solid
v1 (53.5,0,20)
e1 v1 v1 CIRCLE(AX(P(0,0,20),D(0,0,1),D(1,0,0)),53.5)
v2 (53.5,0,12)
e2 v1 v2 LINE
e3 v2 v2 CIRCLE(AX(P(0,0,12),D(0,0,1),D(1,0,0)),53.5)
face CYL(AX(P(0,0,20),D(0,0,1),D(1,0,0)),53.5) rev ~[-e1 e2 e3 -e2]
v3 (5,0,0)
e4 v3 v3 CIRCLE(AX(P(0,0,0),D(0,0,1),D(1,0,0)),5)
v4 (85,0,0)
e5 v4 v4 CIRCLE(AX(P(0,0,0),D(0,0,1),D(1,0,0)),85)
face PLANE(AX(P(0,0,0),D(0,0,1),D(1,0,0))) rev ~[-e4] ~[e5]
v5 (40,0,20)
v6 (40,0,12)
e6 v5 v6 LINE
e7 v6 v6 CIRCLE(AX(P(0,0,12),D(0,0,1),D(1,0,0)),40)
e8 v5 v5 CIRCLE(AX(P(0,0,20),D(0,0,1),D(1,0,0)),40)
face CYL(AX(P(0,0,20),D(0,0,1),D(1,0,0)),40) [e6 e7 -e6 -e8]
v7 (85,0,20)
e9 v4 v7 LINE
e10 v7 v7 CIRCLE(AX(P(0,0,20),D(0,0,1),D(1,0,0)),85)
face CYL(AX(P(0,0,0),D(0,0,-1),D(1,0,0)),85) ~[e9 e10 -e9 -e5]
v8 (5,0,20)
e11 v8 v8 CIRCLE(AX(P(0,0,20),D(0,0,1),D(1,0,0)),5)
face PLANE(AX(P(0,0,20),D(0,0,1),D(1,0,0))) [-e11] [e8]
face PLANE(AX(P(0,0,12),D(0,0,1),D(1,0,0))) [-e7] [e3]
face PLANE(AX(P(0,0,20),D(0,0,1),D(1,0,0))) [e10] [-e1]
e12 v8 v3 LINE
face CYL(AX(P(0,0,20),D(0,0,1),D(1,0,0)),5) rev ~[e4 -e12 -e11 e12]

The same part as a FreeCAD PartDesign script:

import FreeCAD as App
import Part
import Sketcher
from FreeCAD import Vector
Q = App.Units.Quantity

doc = App.newDocument("Part")
params = doc.addObject("Spreadsheet::Sheet", "Params")
for row, (alias, value) in enumerate([
    ("sketch1_diameter", "170 mm"),
    ("pad1_length", "20 mm"),
    ("sketch2_diameter", "107 mm"),
    ("sketch2_diameter2", "80 mm"),
    ("pocket1_length", "8 mm"),
    ("sketch3_diameter", "10 mm"),
], start=1):
    params.set(f"A{row}", alias)
    params.set(f"B{row}", "=" + value)
    params.setAlias(f"B{row}", alias)

body = doc.addObject("PartDesign::Body", "Body")

# Sketch on XY plane
sketch1 = body.newObject("Sketcher::SketchObject", "Sketch")
sketch1.AttachmentSupport = (doc.getObject("XY_Plane"), [""])
sketch1.MapMode = "FlatFace"
sketch1.addGeometry(Part.Circle(Vector(0, 0, 0), Vector(0, 0, 1), 85), False)
sketch1.addConstraint(Sketcher.Constraint("Coincident", 0, 3, -1, 1))
sketch1.addConstraint(Sketcher.Constraint("Diameter", 0, Q("170 mm")))
sketch1.setExpression("Constraints[1]", "Params.sketch1_diameter")
pad1 = body.newObject("PartDesign::Pad", "Pad")
pad1.Profile = sketch1
pad1.setExpression("Length", "Params.pad1_length")

# Sketch on XY plane
sketch2 = body.newObject("Sketcher::SketchObject", "Sketch001")
sketch2.AttachmentSupport = (doc.getObject("XY_Plane"), [""])
sketch2.MapMode = "FlatFace"
sketch2.AttachmentOffset = App.Placement(Vector(0, 0, 20), App.Rotation())
sketch2.addGeometry(Part.Circle(Vector(0, 0, 0), Vector(0, 0, 1), 53.5), False)
sketch2.addGeometry(Part.Circle(Vector(0, 0, 0), Vector(0, 0, 1), 40), False)
sketch2.addConstraint(Sketcher.Constraint("Coincident", 0, 3, -1, 1))
sketch2.addConstraint(Sketcher.Constraint("Coincident", 1, 3, -1, 1))
sketch2.addConstraint(Sketcher.Constraint("Diameter", 0, Q("107 mm")))
sketch2.addConstraint(Sketcher.Constraint("Diameter", 1, Q("80 mm")))
sketch2.setExpression("Constraints[2]", "Params.sketch2_diameter")
sketch2.setExpression("Constraints[3]", "Params.sketch2_diameter2")
pocket1 = body.newObject("PartDesign::Pocket", "Pocket")
pocket1.Profile = sketch2
pocket1.setExpression("Length", "Params.pocket1_length")

# Sketch on XY plane
sketch3 = body.newObject("Sketcher::SketchObject", "Sketch002")
sketch3.AttachmentSupport = (doc.getObject("XY_Plane"), [""])
sketch3.MapMode = "FlatFace"
sketch3.AttachmentOffset = App.Placement(Vector(0, 0, 20), App.Rotation())
sketch3.addGeometry(Part.Circle(Vector(0, 0, 0), Vector(0, 0, 1), 5), False)
sketch3.addConstraint(Sketcher.Constraint("Coincident", 0, 3, -1, 1))
sketch3.addConstraint(Sketcher.Constraint("Diameter", 0, Q("10 mm")))
sketch3.setExpression("Constraints[1]", "Params.sketch3_diameter")
pocket2 = body.newObject("PartDesign::Pocket", "Pocket001")
pocket2.Profile = sketch3
pocket2.Type = "ThroughAll"

doc.recompute()
